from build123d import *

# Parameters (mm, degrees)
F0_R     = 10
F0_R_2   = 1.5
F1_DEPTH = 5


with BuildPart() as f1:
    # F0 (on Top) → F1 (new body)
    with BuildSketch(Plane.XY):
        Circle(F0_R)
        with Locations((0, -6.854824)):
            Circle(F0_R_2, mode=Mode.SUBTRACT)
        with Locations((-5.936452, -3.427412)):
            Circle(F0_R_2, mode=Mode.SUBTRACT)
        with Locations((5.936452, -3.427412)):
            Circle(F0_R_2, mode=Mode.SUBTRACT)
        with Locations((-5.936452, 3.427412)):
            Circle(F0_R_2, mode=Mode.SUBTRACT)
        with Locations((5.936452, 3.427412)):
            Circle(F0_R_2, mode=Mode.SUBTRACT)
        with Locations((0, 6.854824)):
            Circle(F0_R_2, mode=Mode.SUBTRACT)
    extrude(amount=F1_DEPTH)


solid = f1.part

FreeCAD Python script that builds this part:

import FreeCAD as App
import Part
import Sketcher

doc = App.newDocument("Part")
body = doc.addObject("PartDesign::Body", "Body")

# Sketch on XY plane
sketch1 = body.newObject("Sketcher::SketchObject", "Sketch")
sketch1.AttachmentSupport = (doc.getObject("XY_Plane"), [""])
sketch1.MapMode = "FlatFace"
sketch1.addGeometry([
    Part.Circle(App.Vector(0, 0, 0), App.Vector(0, 0, 1), 10),  # 0
    Part.Circle(App.Vector(0, -6.9, 0), App.Vector(0, 0, 1), 1.5),  # 1
    Part.Circle(App.Vector(-5.9, -3.4, 0), App.Vector(0, 0, 1), 1.5),  # 2
    Part.Circle(App.Vector(5.9, -3.4, 0), App.Vector(0, 0, 1), 1.5),  # 3
    Part.Circle(App.Vector(-5.9, 3.4, 0), App.Vector(0, 0, 1), 1.5),  # 4
    Part.Circle(App.Vector(0, 6.9, 0), App.Vector(0, 0, 1), 1.5),  # 5
    Part.Circle(App.Vector(5.9, 3.4, 0), App.Vector(0, 0, 1), 1.5),  # 6
], False)
sketch1.addConstraint([
    Sketcher.Constraint("Coincident", 0, 3, -1, 1),
    Sketcher.Constraint("Equal", 1, 2),
    Sketcher.Constraint("Equal", 2, 3),
    Sketcher.Constraint("Equal", 3, 4),
    Sketcher.Constraint("Equal", 4, 5),
    Sketcher.Constraint("Equal", 5, 6),
    Sketcher.Constraint("Symmetric", 3, 3, 4, 3, -1, 1),
    Sketcher.Constraint("Symmetric", 1, 3, 5, 3, -1, 1),
    Sketcher.Constraint("Symmetric", 2, 3, 6, 3, -1, 1),
    Sketcher.Constraint("Symmetric", 2, 3, 3, 3, -2),
    Sketcher.Constraint("PointOnObject", 1, 3, -2),
    Sketcher.Constraint("Diameter", 0, 20.0),
    Sketcher.Constraint("Diameter", 1, 3.0),
    Sketcher.Constraint("DistanceY", 2, 3, -1, 1, 3.427412),
    Sketcher.Constraint("DistanceY", 1, 3, 2, 3, 3.427412),
    Sketcher.Constraint("DistanceX", 2, 3, -1, 1, 5.936452),
])
pad1 = body.newObject("PartDesign::Pad", "Pad")
pad1.Profile = sketch1
pad1.Length = 5

doc.recompute()
